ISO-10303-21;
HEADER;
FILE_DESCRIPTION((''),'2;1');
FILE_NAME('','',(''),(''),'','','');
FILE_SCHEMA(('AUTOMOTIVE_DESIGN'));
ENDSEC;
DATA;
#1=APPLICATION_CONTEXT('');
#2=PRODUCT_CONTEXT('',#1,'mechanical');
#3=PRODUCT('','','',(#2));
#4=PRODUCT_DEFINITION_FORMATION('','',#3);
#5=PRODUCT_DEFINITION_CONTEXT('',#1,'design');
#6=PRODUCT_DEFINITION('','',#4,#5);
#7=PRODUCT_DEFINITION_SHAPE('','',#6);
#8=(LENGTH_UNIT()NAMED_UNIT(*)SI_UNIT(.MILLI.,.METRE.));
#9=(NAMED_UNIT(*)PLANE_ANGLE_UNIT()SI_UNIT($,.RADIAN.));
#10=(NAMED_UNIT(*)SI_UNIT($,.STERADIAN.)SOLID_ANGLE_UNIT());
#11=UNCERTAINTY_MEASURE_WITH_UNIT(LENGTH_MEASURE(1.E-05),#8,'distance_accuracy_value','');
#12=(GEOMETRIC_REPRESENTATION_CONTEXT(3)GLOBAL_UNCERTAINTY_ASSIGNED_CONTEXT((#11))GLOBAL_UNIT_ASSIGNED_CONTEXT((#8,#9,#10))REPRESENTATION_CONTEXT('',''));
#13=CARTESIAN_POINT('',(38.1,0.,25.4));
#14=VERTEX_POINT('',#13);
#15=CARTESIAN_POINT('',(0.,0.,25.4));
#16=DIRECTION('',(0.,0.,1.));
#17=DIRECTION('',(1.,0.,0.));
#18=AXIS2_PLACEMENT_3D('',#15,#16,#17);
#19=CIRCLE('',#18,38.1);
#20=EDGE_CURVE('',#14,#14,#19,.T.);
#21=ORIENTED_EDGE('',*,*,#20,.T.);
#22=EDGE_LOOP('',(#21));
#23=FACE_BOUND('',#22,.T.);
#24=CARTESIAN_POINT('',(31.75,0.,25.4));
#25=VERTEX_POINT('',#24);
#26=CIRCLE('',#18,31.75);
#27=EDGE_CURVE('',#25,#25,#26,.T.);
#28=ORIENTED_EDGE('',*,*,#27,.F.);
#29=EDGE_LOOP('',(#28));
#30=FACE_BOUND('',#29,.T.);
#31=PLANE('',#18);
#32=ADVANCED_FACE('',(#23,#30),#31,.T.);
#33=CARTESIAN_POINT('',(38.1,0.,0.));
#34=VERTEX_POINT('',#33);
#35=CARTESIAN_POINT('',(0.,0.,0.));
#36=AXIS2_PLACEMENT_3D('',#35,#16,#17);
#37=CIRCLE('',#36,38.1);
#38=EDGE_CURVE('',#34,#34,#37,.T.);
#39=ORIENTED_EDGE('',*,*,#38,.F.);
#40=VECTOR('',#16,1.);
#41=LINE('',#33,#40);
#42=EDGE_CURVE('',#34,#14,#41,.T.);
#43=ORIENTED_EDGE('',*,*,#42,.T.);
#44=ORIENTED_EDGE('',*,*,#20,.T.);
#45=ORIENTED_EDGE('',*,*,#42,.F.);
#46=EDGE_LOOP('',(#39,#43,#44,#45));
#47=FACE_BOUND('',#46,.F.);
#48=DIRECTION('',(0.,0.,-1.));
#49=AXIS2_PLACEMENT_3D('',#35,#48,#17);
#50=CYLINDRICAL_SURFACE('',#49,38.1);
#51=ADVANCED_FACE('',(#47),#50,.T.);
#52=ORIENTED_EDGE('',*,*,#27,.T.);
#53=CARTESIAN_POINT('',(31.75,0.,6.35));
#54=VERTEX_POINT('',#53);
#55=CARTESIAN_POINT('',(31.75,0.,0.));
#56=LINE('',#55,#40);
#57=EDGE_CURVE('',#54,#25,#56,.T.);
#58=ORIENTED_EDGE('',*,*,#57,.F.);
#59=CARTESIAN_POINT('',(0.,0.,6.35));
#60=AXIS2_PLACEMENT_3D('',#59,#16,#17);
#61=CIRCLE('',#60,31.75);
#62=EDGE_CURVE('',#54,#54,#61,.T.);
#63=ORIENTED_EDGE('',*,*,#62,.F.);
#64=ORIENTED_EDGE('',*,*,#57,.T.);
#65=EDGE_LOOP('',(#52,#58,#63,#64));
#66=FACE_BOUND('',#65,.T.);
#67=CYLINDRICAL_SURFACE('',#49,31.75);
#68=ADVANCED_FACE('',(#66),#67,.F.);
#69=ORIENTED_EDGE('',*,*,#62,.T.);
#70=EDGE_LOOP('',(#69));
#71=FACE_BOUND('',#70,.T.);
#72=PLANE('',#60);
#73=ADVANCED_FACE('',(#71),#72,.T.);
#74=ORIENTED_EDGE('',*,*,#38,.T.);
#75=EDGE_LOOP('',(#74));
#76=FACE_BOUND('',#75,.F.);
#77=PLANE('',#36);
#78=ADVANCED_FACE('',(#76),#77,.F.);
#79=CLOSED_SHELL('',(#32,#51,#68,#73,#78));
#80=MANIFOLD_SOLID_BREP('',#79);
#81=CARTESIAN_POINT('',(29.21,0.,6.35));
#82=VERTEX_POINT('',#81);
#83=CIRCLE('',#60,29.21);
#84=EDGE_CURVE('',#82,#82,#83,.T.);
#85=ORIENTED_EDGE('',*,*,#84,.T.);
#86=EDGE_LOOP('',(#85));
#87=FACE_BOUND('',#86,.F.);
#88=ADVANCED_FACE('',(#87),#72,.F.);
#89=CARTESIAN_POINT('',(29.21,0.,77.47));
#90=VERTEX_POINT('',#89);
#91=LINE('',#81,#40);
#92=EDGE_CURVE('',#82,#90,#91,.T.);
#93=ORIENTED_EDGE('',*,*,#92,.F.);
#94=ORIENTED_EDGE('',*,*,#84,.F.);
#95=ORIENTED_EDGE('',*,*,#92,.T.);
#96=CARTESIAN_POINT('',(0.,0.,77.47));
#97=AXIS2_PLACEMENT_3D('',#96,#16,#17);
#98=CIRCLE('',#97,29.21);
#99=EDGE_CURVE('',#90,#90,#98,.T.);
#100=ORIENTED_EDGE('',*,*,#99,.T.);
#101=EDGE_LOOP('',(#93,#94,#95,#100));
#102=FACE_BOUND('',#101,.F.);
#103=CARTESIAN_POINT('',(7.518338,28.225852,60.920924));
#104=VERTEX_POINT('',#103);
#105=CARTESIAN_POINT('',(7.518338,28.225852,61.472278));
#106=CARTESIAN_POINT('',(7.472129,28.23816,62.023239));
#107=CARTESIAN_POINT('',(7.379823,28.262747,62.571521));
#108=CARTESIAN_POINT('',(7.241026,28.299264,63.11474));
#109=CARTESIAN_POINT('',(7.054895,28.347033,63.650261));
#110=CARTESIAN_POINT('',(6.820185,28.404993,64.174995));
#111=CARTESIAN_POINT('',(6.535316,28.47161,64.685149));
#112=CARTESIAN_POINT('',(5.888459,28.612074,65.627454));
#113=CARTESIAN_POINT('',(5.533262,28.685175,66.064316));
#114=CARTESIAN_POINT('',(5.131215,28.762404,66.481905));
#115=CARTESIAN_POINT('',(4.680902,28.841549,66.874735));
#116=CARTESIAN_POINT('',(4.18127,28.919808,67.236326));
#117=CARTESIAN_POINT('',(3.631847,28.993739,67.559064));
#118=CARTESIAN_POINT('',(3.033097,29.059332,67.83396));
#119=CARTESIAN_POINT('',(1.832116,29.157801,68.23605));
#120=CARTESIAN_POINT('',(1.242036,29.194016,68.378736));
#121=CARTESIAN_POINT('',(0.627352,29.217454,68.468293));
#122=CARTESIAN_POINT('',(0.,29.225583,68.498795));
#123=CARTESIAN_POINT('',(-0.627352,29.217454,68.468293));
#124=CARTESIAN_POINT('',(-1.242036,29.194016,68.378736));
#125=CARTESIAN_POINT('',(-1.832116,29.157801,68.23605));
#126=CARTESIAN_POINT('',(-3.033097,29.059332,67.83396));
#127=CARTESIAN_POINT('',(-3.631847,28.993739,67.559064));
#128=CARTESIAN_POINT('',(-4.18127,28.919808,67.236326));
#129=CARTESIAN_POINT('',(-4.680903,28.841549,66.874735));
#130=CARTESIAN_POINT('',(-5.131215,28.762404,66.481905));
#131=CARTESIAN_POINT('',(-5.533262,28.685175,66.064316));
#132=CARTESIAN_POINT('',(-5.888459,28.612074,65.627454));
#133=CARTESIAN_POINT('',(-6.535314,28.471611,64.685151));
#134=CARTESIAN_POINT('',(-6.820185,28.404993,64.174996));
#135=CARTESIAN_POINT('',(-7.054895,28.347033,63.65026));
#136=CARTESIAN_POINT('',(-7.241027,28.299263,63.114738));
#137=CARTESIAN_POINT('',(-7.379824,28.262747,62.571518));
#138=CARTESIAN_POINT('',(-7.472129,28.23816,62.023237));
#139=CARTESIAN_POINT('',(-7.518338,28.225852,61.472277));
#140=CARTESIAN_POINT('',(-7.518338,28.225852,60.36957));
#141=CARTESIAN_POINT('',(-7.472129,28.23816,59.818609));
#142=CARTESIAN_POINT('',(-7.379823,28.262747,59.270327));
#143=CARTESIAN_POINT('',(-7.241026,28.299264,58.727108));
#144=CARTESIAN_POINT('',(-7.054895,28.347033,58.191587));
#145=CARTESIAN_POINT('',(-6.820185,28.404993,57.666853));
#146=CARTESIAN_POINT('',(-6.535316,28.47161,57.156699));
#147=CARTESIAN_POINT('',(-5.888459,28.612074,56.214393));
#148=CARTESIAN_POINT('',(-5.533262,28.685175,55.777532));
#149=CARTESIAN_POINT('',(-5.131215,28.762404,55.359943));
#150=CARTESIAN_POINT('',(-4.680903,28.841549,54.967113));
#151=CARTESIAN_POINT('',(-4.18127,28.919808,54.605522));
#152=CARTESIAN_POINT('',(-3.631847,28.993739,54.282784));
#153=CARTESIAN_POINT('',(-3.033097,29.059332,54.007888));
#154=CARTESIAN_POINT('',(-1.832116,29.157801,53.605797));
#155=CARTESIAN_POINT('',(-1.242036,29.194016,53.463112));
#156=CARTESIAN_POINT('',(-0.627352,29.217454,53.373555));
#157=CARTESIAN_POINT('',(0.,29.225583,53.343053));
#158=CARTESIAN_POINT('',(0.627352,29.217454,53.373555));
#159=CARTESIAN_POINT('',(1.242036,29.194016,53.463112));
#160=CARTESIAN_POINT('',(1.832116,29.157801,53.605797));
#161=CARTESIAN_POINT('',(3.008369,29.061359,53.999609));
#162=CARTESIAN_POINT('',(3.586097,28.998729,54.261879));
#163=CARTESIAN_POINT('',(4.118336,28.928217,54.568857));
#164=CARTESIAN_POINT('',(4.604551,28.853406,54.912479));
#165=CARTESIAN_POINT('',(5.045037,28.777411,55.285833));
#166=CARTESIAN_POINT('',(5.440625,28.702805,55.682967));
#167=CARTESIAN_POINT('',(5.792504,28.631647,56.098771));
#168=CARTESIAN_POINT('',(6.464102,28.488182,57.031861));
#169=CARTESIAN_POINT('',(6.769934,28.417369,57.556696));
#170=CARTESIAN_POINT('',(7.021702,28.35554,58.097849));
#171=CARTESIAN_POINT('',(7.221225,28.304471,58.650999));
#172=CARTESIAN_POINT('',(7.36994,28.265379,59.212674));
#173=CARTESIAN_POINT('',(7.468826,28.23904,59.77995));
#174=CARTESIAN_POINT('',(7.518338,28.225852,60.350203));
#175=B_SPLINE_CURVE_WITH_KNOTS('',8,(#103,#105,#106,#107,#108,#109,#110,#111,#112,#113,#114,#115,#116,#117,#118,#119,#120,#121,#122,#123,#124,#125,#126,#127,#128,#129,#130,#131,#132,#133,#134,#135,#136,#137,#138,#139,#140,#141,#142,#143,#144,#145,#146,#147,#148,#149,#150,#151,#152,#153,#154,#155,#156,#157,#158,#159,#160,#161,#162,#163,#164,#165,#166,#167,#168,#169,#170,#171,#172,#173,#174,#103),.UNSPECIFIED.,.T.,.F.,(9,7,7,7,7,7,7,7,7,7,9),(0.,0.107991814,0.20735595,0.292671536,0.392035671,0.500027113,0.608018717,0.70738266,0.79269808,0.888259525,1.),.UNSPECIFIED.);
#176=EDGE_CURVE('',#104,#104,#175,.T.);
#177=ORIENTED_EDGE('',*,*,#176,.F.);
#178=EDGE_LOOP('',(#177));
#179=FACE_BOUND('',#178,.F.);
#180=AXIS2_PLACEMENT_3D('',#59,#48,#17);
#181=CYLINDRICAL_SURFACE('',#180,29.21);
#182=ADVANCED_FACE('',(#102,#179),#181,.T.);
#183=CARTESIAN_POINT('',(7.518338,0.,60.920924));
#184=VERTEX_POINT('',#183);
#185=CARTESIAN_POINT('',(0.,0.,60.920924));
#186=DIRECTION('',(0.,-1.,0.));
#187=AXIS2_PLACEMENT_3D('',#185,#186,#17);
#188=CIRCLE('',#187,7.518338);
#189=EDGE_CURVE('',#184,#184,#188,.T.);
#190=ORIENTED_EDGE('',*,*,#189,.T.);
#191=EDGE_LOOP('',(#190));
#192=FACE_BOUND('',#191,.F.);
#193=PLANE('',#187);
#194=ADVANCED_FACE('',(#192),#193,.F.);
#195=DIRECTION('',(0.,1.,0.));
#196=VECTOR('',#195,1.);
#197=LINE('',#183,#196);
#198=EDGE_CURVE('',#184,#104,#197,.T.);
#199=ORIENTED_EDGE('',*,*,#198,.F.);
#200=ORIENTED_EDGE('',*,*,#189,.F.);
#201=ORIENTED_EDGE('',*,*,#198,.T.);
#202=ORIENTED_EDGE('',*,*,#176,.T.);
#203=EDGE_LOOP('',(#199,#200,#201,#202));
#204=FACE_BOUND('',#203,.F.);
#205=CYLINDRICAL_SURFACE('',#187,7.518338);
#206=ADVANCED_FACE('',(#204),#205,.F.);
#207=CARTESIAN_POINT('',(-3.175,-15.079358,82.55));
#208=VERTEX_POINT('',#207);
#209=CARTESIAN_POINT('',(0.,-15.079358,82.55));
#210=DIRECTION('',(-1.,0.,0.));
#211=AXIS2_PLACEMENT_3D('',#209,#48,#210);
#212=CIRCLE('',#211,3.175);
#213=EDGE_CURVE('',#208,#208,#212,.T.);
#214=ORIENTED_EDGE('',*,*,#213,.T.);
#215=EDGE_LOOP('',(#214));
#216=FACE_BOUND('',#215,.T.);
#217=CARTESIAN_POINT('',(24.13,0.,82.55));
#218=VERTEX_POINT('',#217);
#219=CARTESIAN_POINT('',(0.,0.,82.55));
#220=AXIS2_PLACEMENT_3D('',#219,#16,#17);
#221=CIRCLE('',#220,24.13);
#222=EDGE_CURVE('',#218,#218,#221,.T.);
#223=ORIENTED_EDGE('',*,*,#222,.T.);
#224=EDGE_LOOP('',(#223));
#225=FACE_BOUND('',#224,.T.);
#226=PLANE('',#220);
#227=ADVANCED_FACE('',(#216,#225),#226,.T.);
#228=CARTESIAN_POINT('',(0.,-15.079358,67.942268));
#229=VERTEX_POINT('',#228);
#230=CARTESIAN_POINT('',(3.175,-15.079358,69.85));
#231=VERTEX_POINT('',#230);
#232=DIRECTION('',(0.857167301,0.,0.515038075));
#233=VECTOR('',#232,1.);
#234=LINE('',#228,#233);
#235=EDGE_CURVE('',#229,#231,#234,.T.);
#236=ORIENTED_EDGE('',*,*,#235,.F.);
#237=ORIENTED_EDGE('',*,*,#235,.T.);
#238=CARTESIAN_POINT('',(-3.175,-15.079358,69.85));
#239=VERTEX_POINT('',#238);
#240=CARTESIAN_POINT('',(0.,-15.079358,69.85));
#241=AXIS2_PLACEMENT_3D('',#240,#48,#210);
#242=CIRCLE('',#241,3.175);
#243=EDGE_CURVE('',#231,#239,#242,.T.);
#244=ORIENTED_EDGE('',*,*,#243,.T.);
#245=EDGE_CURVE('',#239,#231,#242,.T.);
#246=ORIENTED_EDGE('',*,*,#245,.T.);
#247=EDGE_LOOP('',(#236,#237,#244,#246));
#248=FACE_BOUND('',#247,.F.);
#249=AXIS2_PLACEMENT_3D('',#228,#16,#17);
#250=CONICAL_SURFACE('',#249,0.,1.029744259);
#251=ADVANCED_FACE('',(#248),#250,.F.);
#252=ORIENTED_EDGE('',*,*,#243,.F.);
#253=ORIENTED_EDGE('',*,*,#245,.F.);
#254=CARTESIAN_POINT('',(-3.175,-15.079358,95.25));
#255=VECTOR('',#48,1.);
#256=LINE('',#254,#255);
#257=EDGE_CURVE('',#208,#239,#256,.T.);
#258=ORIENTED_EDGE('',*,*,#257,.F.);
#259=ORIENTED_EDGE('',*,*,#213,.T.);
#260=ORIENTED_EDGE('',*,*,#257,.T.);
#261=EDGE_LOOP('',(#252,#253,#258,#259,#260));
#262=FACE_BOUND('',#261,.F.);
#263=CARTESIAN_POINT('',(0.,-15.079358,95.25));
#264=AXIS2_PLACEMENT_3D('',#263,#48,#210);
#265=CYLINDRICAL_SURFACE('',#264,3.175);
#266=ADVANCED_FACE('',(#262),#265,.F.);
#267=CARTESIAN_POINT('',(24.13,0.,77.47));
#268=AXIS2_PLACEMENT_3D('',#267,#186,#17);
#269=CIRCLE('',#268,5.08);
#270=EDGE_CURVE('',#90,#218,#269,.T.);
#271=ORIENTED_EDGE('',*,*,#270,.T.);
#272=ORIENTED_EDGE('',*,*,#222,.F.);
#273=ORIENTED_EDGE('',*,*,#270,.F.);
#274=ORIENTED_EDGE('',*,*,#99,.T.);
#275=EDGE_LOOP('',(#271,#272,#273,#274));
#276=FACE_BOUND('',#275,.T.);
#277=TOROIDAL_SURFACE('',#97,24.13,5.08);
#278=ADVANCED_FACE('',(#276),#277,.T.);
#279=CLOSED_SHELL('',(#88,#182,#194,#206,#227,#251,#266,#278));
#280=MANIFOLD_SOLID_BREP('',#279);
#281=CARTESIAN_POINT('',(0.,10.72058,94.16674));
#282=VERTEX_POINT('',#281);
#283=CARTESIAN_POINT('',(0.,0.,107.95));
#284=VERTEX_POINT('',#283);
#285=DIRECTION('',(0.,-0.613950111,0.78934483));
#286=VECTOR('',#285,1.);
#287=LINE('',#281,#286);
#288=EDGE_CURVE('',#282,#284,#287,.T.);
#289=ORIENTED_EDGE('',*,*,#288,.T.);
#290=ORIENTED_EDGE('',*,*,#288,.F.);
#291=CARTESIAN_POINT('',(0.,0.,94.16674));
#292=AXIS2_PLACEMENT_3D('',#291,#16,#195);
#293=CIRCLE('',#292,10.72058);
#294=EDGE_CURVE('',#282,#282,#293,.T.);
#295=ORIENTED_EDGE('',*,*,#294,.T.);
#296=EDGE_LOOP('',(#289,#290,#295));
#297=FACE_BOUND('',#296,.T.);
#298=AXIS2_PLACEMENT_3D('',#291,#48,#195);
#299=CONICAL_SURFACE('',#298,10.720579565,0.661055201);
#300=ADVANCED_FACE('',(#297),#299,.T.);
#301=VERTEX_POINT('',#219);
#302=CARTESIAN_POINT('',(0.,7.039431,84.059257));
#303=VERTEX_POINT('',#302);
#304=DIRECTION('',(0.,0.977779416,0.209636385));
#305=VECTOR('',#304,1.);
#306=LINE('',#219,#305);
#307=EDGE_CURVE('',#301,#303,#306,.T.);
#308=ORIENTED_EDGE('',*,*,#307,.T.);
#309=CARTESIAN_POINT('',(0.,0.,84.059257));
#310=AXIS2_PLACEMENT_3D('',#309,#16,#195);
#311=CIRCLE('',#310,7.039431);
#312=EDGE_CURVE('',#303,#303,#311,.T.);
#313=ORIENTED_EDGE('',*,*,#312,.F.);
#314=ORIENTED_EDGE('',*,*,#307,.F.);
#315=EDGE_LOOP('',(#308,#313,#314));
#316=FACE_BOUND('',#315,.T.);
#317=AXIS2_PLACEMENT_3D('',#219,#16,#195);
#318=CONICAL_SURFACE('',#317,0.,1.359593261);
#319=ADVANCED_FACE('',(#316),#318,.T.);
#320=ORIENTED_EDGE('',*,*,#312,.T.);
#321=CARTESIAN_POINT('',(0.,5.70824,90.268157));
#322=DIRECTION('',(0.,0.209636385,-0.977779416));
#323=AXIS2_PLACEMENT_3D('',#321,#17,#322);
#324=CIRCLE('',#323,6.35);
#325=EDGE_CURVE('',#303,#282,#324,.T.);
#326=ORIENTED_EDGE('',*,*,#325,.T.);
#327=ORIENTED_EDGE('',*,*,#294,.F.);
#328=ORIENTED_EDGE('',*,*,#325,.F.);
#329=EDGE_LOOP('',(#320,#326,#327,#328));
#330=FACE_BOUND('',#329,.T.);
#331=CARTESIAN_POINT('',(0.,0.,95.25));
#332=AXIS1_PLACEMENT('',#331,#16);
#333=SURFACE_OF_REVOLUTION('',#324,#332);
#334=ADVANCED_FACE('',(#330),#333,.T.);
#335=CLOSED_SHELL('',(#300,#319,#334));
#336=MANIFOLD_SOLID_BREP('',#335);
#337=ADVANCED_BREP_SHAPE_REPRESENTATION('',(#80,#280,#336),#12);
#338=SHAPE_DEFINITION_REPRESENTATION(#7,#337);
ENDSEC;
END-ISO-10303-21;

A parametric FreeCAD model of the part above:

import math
import FreeCAD as App
import Part
import Sketcher

V = App.Vector
Q = App.Units.Quantity


def edges_at(feature, points):
    """Names of the edges that pass closest to the given points."""
    edges = feature.Shape.Edges
    near = lambda p: min(range(len(edges)), key=lambda i: edges[i].distToShape(Part.Vertex(*p))[0])
    return sorted({f"Edge{near(p) + 1}" for p in points})

doc = App.newDocument("Part")
body = doc.addObject("PartDesign::Body", "Body")

sketch1 = doc.addObject("Sketcher::SketchObject", "Sketch")
body.addObject(sketch1)
sketch1.AttachmentSupport = (doc.XY_Plane, [""])
sketch1.MapMode = "FlatFace"
sketch1.addGeometry(Part.Circle(V(0, 0, 0), V(0, 0, 1), 31.75), False)
sketch1.addConstraint([
    Sketcher.Constraint("Coincident", 0, 3, -1, 1),
    Sketcher.Constraint("Diameter", 0, Q("2.5 in")),
])
pad1 = doc.addObject("PartDesign::Pad", "Pad")
body.addObject(pad1)
pad1.Profile = sketch1
pad1.Length = Q("0.25 in")

sketch2 = doc.addObject("Sketcher::SketchObject", "Sketch001")
body.addObject(sketch2)
sketch2.AttachmentSupport = (doc.XY_Plane, [""])
sketch2.MapMode = "FlatFace"
sketch2.addGeometry([
    Part.Circle(V(0, 0, 0), V(0, 0, 1), 38.1),
    Part.Circle(V(0, 0, 0), V(0, 0, 1), 31.75),
], False)
sketch2.addConstraint([
    Sketcher.Constraint("Coincident", 0, 3, -1, 1),
    Sketcher.Constraint("Coincident", 1, 3, -1, 1),
    Sketcher.Constraint("Diameter", 0, Q("3 in")),
    Sketcher.Constraint("Diameter", 1, Q("2.5 in")),
])
pad2 = doc.addObject("PartDesign::Pad", "Pad001")
body.addObject(pad2)
pad2.Profile = sketch2
pad2.Length = Q("1 in")
body2 = doc.addObject("PartDesign::Body", "Body001")

sketch3 = doc.addObject("Sketcher::SketchObject", "Sketch002")
body2.addObject(sketch3)
sketch3.AttachmentSupport = (doc.getObject("XY_Plane001"), [""])
sketch3.MapMode = "FlatFace"
sketch3.AttachmentOffset = App.Placement(V(0, 0, 0.25 * 25.4), App.Rotation())
sketch3.addGeometry(Part.Circle(V(0, 0, 0), V(0, 0, 1), 29.21), False)
sketch3.addConstraint([
    Sketcher.Constraint("Coincident", 0, 3, -1, 1),
    Sketcher.Constraint("Diameter", 0, Q("2.3 in")),
])
pad3 = doc.addObject("PartDesign::Pad", "Pad002")
body2.addObject(pad3)
pad3.Profile = sketch3
pad3.Length = Q("3 in")
doc.recompute()

fillet = doc.addObject("PartDesign::Fillet", "Fillet")
body2.addObject(fillet)
fillet.Base = (pad3, edges_at(pad3, [(-29.21, 0, 82.55)]))
fillet.Radius = Q("0.2 in")

sketch4 = doc.addObject("Sketcher::SketchObject", "Sketch003")
body2.addObject(sketch4)
sketch4.AttachmentSupport = (doc.getObject("XZ_Plane001"), [""])
sketch4.MapMode = "FlatFace"
sketch4.addGeometry(Part.Circle(V(0, 60.920924, 0), V(0, 0, 1), 7.518338), False)
sketch4.addConstraint([
    Sketcher.Constraint("PointOnObject", 0, 3, -2),
    Sketcher.Constraint("Diameter", 0, Q("15.036676 mm")),
    Sketcher.Constraint("DistanceY", -1, 1, 0, 3, Q("60.920924 mm")),
])
pocket1 = doc.addObject("PartDesign::Pocket", "Pocket")
body2.addObject(pocket1)
pocket1.Profile = sketch4
pocket1.Length = Q("3 in")

sketch5 = doc.addObject("Sketcher::SketchObject", "Sketch004")
body2.addObject(sketch5)
sketch5.AttachmentSupport = (doc.getObject("XY_Plane001"), [""])
sketch5.MapMode = "FlatFace"
sketch5.AttachmentOffset = App.Placement(V(0, 0, 3.25 * 25.4), App.Rotation())
sketch5.addGeometry(Part.Circle(V(0, -15.079358, 0), V(0, 0, 1), 3.175), False)
sketch5.addConstraint([
    Sketcher.Constraint("PointOnObject", 0, 3, -2),
    Sketcher.Constraint("Diameter", 0, Q("0.25 in")),
    Sketcher.Constraint("DistanceY", 0, 3, -1, 1, Q("15.079358 mm")),
])
doc.recompute()
hole = doc.addObject("PartDesign::Hole", "Hole")
body2.addObject(hole)
hole.Profile = sketch5
hole.ThreadType = "None"
hole.Diameter = Q("0.25 in")
hole.DepthType = "Dimension"
hole.Depth = Q("0.5 in")
hole.DrillPoint = "Angled"
hole.DrillPointAngle = 118
body3 = doc.addObject("PartDesign::Body", "Body002")

sketch6 = doc.addObject("Sketcher::SketchObject", "Sketch005")
body3.addObject(sketch6)
sketch6.AttachmentSupport = (doc.getObject("YZ_Plane002"), [""])
sketch6.MapMode = "FlatFace"
sketch6.addGeometry([
    Part.LineSegment(V(0, 107.95, 0), V(0, 82.55, 0)),
    Part.LineSegment(V(0, 82.55, 0), V(7.039431, 84.059257, 0)),
    Part.ArcOfCircle(Part.Circle(V(5.70824, 90.268157, 0), V(0, 0, 1), 6.35), math.radians(-77.898956), math.radians(37.875673)),
    Part.LineSegment(V(10.72058, 94.16674, 0), V(0, 107.95, 0)),
], False)
sketch6.addConstraint([
    Sketcher.Constraint("Coincident", 0, 2, 1, 1),
    Sketcher.Constraint("Tangent", 1, 2, 2, 1),
    Sketcher.Constraint("Tangent", 2, 2, 3, 1),
    Sketcher.Constraint("Coincident", 3, 2, 0, 1),
    Sketcher.Constraint("Vertical", 0),
    Sketcher.Constraint("PointOnObject", 0, 2, -2),
    Sketcher.Constraint("DistanceY", 0, 2, 0, 1, Q("1 in")),
    Sketcher.Constraint("Radius", 2, Q("0.25 in")),
    Sketcher.Constraint("DistanceY", -1, 1, 0, 2, Q("3.25 in")),
    Sketcher.Constraint("DistanceY", 1, 2, 2, 3, Q("6.208899 mm")),
    Sketcher.Constraint("DistanceX", -1, 1, 2, 3, Q("5.70824 mm")),
])
revolution = doc.addObject("PartDesign::Revolution", "Revolution")
body3.addObject(revolution)
revolution.Profile = sketch6
revolution.ReferenceAxis = (sketch6, ["V_Axis"])
revolution.Angle = 360

doc.recompute()
